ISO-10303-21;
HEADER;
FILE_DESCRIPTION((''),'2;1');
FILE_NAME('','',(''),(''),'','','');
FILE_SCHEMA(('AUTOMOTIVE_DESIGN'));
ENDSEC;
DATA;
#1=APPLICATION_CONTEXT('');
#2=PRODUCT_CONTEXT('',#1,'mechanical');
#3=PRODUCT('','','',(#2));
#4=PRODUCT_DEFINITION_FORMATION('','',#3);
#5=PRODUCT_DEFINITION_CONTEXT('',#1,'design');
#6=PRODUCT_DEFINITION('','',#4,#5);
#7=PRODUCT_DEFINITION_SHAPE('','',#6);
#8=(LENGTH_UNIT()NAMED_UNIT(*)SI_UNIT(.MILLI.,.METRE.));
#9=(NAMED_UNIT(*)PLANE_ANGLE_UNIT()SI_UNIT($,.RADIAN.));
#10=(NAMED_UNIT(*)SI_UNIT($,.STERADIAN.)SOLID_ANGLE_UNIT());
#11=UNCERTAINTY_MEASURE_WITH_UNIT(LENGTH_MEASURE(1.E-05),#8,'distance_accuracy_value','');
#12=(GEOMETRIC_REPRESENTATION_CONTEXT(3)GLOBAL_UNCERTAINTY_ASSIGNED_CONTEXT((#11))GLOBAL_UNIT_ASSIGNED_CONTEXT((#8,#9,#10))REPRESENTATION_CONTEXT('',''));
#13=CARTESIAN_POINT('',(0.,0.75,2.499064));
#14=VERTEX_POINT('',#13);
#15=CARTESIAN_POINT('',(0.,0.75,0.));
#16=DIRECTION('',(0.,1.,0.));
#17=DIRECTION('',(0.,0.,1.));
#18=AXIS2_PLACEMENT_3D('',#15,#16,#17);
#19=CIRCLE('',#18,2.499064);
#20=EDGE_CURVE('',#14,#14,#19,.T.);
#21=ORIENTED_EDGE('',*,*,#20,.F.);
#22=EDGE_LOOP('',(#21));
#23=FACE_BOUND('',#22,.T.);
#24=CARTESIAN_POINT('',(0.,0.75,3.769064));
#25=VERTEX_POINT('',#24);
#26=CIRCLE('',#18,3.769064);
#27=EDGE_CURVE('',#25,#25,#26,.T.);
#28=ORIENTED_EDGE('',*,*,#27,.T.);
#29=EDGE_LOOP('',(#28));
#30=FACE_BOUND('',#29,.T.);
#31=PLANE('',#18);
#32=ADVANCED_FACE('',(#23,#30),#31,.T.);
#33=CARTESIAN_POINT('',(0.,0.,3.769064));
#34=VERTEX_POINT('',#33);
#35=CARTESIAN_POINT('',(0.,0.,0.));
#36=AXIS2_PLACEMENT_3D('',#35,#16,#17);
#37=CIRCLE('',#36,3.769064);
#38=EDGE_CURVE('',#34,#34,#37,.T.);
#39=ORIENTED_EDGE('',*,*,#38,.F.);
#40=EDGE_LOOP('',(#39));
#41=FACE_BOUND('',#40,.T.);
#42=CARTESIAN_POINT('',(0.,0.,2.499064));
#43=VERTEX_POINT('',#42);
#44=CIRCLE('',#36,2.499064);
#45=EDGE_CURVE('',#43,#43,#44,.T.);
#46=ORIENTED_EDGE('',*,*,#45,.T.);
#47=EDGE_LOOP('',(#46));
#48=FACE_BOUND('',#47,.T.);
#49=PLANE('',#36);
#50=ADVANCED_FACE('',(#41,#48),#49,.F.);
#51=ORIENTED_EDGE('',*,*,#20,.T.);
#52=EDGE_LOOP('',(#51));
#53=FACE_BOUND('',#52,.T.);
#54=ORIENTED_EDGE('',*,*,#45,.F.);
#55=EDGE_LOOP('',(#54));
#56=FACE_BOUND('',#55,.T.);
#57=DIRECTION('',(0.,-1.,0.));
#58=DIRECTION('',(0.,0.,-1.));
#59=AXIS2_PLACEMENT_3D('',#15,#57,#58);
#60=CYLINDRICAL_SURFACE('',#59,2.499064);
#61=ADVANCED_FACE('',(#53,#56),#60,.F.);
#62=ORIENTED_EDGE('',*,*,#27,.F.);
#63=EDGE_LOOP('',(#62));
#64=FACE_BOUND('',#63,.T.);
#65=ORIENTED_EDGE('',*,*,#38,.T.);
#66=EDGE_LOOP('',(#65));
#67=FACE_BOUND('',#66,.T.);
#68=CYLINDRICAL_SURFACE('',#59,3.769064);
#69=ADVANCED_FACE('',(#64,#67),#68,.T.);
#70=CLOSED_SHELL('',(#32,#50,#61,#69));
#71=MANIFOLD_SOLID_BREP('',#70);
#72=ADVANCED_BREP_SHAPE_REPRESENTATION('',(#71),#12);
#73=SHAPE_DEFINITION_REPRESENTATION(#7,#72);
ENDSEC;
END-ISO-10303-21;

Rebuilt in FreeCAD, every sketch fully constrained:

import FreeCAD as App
import Part
import Sketcher
from FreeCAD import Vector

doc = App.newDocument("Part")
body = doc.addObject("PartDesign::Body", "Body")

sketch1 = body.newObject("Sketcher::SketchObject", "Sketch")
sketch1.AttachmentSupport = (doc.getObject("XZ_Plane"), [""])
sketch1.MapMode = "FlatFace"
sketch1.addGeometry([
    Part.Circle(Vector(0, 0, 0), Vector(0, 0, 1), 3.769064),
    Part.Circle(Vector(0, 0, 0), Vector(0, 0, 1), 2.499064),
], False)
sketch1.addConstraint([
    Sketcher.Constraint("Coincident", 0, 3, -1, 1),
    Sketcher.Constraint("Coincident", 1, 3, -1, 1),
    Sketcher.Constraint("Diameter", 0, 7.538128),
    Sketcher.Constraint("Diameter", 1, 4.998128),
])
pad1 = body.newObject("PartDesign::Pad", "Pad")
pad1.Profile = sketch1
pad1.Length = 0.75
pad1.Reversed = True

doc.recompute()
